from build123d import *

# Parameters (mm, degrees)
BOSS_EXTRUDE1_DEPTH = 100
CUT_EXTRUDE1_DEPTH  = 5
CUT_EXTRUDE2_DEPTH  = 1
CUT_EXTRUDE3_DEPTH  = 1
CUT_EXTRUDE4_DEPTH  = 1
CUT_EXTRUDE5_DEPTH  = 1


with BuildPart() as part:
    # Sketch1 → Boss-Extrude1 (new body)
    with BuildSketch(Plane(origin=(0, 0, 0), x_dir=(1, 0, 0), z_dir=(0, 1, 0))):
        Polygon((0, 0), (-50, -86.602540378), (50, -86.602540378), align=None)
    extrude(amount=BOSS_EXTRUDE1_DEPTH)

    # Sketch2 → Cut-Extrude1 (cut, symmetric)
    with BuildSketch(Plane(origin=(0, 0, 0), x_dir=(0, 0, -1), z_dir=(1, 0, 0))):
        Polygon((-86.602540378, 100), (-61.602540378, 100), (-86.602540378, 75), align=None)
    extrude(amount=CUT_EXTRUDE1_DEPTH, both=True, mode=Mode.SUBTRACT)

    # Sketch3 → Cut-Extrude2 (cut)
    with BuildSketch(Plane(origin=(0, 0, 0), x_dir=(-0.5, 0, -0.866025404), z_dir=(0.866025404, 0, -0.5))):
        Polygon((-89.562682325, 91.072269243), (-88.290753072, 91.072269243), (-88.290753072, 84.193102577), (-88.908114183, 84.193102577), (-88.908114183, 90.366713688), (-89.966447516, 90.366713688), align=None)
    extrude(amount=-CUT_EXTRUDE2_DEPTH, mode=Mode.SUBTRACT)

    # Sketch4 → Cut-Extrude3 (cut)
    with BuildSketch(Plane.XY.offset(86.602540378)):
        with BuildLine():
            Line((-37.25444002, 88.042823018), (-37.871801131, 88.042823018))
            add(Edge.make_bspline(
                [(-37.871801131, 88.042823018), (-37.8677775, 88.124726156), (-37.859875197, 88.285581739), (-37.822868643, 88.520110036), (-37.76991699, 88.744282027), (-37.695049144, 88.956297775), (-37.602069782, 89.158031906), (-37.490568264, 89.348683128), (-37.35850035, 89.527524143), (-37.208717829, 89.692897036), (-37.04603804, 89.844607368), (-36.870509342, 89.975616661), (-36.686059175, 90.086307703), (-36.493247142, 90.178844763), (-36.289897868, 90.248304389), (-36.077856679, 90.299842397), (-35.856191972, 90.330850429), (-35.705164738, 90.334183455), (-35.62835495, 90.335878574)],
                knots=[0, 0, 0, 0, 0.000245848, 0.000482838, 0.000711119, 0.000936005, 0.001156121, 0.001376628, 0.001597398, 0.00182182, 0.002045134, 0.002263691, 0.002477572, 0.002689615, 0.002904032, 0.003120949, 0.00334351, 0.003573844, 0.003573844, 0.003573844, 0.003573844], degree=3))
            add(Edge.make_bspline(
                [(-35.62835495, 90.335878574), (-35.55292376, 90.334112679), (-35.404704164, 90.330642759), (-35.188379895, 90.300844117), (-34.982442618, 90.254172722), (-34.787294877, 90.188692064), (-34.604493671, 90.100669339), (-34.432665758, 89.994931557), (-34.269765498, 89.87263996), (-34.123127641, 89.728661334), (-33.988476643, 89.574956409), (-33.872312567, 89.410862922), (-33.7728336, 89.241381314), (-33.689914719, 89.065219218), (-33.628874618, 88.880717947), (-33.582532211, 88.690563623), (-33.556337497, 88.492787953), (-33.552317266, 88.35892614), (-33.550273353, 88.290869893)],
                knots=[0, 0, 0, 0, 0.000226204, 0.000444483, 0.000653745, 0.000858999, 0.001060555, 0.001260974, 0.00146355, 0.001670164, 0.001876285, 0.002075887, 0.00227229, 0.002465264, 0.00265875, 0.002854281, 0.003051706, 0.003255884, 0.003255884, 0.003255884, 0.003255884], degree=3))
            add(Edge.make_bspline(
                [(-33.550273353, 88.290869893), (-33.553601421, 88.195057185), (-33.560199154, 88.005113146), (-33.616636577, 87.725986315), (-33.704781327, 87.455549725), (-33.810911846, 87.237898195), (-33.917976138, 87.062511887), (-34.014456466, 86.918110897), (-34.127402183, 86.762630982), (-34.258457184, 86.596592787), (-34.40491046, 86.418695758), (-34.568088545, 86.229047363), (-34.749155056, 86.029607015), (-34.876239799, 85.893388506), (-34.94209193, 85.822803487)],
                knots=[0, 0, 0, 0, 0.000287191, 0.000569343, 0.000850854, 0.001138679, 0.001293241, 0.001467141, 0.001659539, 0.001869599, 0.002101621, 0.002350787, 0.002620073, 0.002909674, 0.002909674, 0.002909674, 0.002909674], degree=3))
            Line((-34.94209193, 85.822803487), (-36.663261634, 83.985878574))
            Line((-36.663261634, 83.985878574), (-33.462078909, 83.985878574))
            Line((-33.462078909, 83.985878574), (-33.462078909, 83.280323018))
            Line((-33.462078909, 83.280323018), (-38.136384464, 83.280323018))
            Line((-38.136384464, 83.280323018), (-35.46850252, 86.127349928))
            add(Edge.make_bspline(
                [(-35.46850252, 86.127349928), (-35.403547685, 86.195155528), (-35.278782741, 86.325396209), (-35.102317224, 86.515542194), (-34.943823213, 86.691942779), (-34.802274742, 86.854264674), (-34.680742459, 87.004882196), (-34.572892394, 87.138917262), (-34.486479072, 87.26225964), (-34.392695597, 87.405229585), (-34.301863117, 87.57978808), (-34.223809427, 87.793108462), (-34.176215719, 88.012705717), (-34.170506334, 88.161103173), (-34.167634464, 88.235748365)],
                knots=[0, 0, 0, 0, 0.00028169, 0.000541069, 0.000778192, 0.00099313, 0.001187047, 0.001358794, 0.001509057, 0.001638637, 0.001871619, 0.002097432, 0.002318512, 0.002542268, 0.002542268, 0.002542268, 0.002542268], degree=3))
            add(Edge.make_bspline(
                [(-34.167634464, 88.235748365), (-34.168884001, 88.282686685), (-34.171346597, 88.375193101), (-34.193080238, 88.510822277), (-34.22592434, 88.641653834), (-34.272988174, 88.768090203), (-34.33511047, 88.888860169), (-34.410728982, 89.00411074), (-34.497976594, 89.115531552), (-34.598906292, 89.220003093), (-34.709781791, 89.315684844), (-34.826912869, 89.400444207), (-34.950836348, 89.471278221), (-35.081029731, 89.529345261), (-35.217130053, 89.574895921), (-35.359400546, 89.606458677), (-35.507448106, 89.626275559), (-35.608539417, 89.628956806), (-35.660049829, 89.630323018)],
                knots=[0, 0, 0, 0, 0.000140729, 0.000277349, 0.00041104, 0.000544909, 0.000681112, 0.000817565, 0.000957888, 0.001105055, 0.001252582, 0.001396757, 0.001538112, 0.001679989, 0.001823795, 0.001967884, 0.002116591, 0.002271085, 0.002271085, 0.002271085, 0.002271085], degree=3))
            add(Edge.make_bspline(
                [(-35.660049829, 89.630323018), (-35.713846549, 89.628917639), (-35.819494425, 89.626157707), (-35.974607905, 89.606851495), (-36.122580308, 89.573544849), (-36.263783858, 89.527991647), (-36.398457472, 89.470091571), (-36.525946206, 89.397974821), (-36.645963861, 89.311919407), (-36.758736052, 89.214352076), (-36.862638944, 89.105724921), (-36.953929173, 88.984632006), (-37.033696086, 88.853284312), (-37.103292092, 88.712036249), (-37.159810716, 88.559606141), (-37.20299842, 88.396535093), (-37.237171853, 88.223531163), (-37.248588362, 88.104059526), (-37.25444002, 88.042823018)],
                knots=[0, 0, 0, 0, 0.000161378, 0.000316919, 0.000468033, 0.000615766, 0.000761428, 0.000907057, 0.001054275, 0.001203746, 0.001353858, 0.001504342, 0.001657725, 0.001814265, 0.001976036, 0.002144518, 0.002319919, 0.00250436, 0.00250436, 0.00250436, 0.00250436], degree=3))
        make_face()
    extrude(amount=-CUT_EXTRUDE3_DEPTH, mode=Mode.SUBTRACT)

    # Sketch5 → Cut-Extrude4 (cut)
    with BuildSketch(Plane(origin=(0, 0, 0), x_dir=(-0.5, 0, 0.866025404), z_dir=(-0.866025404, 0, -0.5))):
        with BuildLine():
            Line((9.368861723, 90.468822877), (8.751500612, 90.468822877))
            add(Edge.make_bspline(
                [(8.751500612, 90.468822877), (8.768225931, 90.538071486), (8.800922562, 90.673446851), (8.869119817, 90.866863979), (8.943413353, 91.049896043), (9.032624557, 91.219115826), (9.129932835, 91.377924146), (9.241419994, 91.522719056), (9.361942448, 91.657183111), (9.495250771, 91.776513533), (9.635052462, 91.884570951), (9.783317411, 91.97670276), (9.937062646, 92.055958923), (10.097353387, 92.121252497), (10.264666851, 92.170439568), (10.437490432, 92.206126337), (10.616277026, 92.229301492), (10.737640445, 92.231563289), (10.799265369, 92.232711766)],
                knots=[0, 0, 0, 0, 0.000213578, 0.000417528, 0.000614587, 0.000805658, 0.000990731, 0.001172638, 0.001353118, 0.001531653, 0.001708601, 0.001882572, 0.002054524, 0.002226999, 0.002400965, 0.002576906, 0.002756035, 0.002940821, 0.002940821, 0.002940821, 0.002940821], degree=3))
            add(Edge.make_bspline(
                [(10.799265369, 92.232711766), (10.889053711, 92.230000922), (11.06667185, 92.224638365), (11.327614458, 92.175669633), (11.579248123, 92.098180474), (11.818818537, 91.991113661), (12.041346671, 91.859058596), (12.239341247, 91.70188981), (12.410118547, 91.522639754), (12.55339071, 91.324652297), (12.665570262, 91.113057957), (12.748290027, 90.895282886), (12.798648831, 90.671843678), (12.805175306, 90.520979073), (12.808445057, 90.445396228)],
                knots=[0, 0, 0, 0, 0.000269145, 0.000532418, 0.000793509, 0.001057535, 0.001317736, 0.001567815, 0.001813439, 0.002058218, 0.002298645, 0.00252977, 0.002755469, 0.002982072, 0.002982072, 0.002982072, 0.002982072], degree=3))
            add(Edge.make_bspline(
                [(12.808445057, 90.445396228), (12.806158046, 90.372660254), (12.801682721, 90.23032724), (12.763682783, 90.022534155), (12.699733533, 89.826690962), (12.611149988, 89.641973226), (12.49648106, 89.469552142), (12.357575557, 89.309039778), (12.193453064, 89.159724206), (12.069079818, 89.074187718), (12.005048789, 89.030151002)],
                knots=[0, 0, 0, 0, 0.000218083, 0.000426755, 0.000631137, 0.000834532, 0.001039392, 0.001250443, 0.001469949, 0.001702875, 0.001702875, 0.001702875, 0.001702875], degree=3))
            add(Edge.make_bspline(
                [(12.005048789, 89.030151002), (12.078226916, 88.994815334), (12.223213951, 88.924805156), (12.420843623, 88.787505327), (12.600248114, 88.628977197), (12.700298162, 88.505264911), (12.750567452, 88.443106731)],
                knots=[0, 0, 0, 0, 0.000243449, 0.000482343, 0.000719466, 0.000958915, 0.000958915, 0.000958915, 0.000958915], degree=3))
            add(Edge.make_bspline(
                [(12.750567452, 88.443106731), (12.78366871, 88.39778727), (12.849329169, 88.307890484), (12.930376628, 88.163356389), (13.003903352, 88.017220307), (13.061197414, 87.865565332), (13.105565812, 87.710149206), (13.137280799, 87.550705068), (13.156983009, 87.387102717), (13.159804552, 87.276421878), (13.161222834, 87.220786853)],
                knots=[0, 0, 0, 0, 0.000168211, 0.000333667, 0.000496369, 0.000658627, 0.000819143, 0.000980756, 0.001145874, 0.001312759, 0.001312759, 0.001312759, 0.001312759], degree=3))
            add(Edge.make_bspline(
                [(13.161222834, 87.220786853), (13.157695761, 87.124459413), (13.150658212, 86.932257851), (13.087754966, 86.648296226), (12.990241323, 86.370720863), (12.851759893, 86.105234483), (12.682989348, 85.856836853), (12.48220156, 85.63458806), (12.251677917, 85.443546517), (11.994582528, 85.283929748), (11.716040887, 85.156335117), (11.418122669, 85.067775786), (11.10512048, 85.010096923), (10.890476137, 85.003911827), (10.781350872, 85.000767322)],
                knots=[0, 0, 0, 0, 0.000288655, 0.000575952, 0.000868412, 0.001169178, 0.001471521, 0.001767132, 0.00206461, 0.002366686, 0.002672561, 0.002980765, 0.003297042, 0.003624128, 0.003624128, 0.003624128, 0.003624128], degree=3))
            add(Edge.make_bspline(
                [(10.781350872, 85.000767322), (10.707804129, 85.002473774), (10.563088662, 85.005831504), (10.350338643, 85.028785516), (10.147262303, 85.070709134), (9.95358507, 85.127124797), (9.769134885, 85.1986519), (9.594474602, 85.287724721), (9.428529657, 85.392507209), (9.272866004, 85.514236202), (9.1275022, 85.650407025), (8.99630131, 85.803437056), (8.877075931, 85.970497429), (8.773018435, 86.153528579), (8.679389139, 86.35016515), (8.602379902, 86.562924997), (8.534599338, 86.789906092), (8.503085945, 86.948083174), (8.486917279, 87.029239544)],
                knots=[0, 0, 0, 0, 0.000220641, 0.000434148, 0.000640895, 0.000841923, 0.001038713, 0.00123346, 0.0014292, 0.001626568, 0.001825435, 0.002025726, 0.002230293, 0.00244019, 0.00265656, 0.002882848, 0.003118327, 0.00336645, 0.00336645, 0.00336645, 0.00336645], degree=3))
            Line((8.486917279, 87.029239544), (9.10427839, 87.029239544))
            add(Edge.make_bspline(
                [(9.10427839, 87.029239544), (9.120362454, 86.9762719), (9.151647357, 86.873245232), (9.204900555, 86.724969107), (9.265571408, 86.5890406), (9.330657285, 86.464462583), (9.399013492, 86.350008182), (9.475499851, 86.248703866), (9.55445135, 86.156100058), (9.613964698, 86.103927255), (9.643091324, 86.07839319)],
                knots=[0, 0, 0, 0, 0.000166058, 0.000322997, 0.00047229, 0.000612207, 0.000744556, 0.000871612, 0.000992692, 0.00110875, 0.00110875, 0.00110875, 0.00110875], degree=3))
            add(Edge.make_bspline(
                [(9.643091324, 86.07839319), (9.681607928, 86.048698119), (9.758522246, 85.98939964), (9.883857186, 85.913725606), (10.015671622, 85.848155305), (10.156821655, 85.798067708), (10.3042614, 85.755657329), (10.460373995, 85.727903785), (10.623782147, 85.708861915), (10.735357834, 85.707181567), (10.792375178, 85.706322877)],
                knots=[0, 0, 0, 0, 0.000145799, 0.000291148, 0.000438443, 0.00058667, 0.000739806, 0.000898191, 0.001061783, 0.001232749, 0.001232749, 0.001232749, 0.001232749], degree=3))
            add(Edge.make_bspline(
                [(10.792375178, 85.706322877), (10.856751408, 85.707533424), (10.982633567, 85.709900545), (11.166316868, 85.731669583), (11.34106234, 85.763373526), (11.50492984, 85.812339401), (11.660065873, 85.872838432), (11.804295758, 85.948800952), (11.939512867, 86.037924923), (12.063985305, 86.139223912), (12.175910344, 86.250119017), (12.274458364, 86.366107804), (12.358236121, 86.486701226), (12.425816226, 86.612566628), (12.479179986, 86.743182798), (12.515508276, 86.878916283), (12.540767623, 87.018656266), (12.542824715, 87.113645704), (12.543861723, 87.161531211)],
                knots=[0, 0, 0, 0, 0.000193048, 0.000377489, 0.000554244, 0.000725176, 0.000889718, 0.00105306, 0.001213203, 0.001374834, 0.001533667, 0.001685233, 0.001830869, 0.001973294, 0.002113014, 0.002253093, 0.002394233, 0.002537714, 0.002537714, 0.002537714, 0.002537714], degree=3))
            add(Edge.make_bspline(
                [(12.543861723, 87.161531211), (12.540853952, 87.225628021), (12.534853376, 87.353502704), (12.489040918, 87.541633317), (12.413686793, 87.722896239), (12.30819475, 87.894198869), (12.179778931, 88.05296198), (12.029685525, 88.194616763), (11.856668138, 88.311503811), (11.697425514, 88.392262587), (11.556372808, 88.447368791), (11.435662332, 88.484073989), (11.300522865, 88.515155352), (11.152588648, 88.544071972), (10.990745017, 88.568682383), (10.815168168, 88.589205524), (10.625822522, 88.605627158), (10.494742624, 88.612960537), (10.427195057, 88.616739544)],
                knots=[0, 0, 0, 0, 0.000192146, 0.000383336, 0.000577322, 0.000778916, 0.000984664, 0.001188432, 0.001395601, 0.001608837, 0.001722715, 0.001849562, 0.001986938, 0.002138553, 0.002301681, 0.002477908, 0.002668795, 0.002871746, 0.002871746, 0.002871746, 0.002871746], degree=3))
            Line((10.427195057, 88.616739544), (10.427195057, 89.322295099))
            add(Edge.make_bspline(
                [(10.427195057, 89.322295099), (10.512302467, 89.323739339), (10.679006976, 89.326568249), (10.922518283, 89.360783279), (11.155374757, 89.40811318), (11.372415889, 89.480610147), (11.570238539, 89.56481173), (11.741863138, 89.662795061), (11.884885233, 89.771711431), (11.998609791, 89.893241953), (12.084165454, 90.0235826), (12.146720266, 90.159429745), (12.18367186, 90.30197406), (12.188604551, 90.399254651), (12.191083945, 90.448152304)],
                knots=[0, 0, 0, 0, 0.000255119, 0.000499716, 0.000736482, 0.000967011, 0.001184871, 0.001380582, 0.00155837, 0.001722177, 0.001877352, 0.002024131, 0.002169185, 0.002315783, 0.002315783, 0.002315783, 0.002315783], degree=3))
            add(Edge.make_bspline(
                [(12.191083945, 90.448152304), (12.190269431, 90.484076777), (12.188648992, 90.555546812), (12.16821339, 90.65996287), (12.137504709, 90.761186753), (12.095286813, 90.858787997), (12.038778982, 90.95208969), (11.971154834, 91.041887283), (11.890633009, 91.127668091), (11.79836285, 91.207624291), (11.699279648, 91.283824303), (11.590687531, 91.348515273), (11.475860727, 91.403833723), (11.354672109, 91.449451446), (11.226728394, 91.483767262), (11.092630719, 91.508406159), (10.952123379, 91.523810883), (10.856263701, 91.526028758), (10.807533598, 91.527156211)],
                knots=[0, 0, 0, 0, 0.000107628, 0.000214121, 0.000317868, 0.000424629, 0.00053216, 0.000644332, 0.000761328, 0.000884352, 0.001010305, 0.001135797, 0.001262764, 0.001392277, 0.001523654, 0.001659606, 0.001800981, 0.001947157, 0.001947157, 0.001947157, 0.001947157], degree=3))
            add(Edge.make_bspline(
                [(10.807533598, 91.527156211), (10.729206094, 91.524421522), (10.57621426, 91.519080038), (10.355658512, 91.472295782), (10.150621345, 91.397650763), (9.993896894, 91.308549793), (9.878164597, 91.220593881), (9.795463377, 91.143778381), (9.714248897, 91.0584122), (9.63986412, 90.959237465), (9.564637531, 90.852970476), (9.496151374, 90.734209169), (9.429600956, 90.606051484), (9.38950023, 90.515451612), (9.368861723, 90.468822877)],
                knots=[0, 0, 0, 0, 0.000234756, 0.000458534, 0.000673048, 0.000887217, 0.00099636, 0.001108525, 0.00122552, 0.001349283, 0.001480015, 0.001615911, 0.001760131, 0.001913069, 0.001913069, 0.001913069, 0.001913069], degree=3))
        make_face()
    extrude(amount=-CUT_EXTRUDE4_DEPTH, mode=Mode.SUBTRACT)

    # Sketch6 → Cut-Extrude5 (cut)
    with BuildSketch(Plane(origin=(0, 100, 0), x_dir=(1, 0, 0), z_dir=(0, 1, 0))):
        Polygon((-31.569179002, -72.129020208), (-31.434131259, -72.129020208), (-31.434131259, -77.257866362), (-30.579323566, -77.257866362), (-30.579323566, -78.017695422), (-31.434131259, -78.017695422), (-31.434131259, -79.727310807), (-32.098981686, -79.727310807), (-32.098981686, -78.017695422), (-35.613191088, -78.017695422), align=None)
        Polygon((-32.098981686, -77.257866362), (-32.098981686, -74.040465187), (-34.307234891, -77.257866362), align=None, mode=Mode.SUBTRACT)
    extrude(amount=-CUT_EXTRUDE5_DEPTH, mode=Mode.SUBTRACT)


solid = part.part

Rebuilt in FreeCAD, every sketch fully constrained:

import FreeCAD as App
import Part
import Sketcher
Q = App.Units.Quantity

doc = App.newDocument("Part")
body = doc.addObject("PartDesign::Body", "Body")

sketch1 = body.newObject("Sketcher::SketchObject", "Sketch")
sketch1.AttachmentSupport = (doc.getObject("XZ_Plane"), [""])
sketch1.MapMode = "FlatFace"
sketch1.addGeometry([
    Part.LineSegment(App.Vector(0, 0, 0), App.Vector(-50, 87, 0)),
    Part.LineSegment(App.Vector(-50, 87, 0), App.Vector(50, 87, 0)),
    Part.LineSegment(App.Vector(50, 87, 0), App.Vector(0, 0, 0)),
], False)
sketch1.addConstraint([
    Sketcher.Constraint("Coincident", 0, 2, 1, 1),
    Sketcher.Constraint("Coincident", 1, 2, 2, 1),
    Sketcher.Constraint("Coincident", 2, 2, 0, 1),
    Sketcher.Constraint("Horizontal", 1),
    Sketcher.Constraint("Coincident", 2, 2, -1, 1),
    Sketcher.Constraint("Equal", 0, 2),
    Sketcher.Constraint("DistanceX", 1, 1, 1, 2, Q("100 mm")),
    Sketcher.Constraint("Angle", 0, Q("120 deg")),
])
pad1 = body.newObject("PartDesign::Pad", "Pad")
pad1.Profile = sketch1
pad1.Length = 100
pad1.Reversed = True

sketch2 = body.newObject("Sketcher::SketchObject", "Sketch001")
sketch2.AttachmentSupport = (doc.getObject("YZ_Plane"), [""])
sketch2.MapMode = "FlatFace"
sketch2.addGeometry([
    Part.LineSegment(App.Vector(100, 62, 0), App.Vector(100, 87, 0)),
    Part.LineSegment(App.Vector(100, 87, 0), App.Vector(75, 87, 0)),
    Part.LineSegment(App.Vector(75, 87, 0), App.Vector(100, 62, 0)),
], False)
sketch2.addConstraint([
    Sketcher.Constraint("Coincident", 0, 2, 1, 1),
    Sketcher.Constraint("Coincident", 1, 2, 2, 1),
    Sketcher.Constraint("Coincident", 2, 2, 0, 1),
    Sketcher.Constraint("Vertical", 0),
    Sketcher.Constraint("Horizontal", 1),
    Sketcher.Constraint("Equal", 1, 0),
    Sketcher.Constraint("DistanceX", 1, 2, 1, 1, Q("25 mm")),
    Sketcher.Constraint("DistanceX", -1, 1, 0, 2, Q("100 mm")),
    Sketcher.Constraint("DistanceY", -1, 1, 0, 2, Q("86.60254 mm")),
])
pocket1 = body.newObject("PartDesign::Pocket", "Pocket")
pocket1.Profile = sketch2
pocket1.Length = 10
pocket1.Midplane = True

sketch3 = body.newObject("Sketcher::SketchObject", "Sketch002")
sketch3.Placement = App.Placement(App.Vector(0, 0, 0), App.Rotation(App.Vector(-0.5, 0, -0.866025404), App.Vector(0, 1, 0), App.Vector(0.866025404, 0, -0.5), "ZXY"))
sketch3.addGeometry([
    Part.LineSegment(App.Vector(-88.3, 91.1, 0), App.Vector(-89.6, 91.1, 0)),
    Part.LineSegment(App.Vector(-89.6, 91.1, 0), App.Vector(-90, 90.4, 0)),
    Part.LineSegment(App.Vector(-90, 90.4, 0), App.Vector(-88.9, 90.4, 0)),
    Part.LineSegment(App.Vector(-88.9, 90.4, 0), App.Vector(-88.9, 84.2, 0)),
    Part.LineSegment(App.Vector(-88.9, 84.2, 0), App.Vector(-88.3, 84.2, 0)),
    Part.LineSegment(App.Vector(-88.3, 84.2, 0), App.Vector(-88.3, 91.1, 0)),
], False)
sketch3.addConstraint([
    Sketcher.Constraint("Coincident", 0, 2, 1, 1),
    Sketcher.Constraint("Coincident", 1, 2, 2, 1),
    Sketcher.Constraint("Coincident", 2, 2, 3, 1),
    Sketcher.Constraint("Coincident", 3, 2, 4, 1),
    Sketcher.Constraint("Coincident", 4, 2, 5, 1),
    Sketcher.Constraint("Coincident", 5, 2, 0, 1),
    Sketcher.Constraint("Horizontal", 0),
    Sketcher.Constraint("Horizontal", 2),
    Sketcher.Constraint("Vertical", 3),
    Sketcher.Constraint("Horizontal", 4),
    Sketcher.Constraint("Vertical", 5),
    Sketcher.Constraint("DistanceX", 0, 2, 0, 1, Q("1.271929 mm")),
    Sketcher.Constraint("DistanceX", 4, 1, 4, 2, Q("0.617361 mm")),
    Sketcher.Constraint("DistanceY", 3, 2, 3, 1, Q("6.173611 mm")),
    Sketcher.Constraint("DistanceX", 2, 1, 2, 2, Q("1.058333 mm")),
    Sketcher.Constraint("DistanceY", 5, 1, 5, 2, Q("6.879167 mm")),
    Sketcher.Constraint("DistanceY", -1, 1, 0, 2, Q("91.072269 mm")),
    Sketcher.Constraint("DistanceX", 0, 2, -1, 1, Q("89.562682 mm")),
])
pocket2 = body.newObject("PartDesign::Pocket", "Pocket001")
pocket2.Profile = sketch3
pocket2.Length = 1

sketch4 = body.newObject("Sketcher::SketchObject", "Sketch003")
sketch4.AttachmentSupport = (doc.getObject("XY_Plane"), [""])
sketch4.MapMode = "FlatFace"
sketch4.AttachmentOffset = App.Placement(App.Vector(0, 0, 86.60254), App.Rotation())
sketch4.addGeometry([
    Part.LineSegment(App.Vector(-37.871801, 88.042823, 0), App.Vector(-37.25444, 88.042823, 0)),
    Part.BSplineCurve([App.Vector(-35.66005, 89.630323, 0), App.Vector(-35.713847, 89.628918, 0), App.Vector(-35.819494, 89.626158, 0), App.Vector(-35.974608, 89.606851, 0), App.Vector(-36.12258, 89.573545, 0), App.Vector(-36.263784, 89.527992, 0), App.Vector(-36.398457, 89.470092, 0), App.Vector(-36.525946, 89.397975, 0), App.Vector(-36.645964, 89.311919, 0), App.Vector(-36.758736, 89.214352, 0), App.Vector(-36.862639, 89.105725, 0), App.Vector(-36.953929, 88.984632, 0), App.Vector(-37.033696, 88.853284, 0), App.Vector(-37.103292, 88.712036, 0), App.Vector(-37.159811, 88.559606, 0), App.Vector(-37.202998, 88.396535, 0), App.Vector(-37.237172, 88.223531, 0), App.Vector(-37.248588, 88.10406, 0), App.Vector(-37.25444, 88.042823, 0)], [4, 1, 1, 1, 1, 1, 1, 1, 1, 1, 1, 1, 1, 1, 1, 1, 4], [0, 0.000161378, 0.000316919, 0.000468033, 0.000615766, 0.000761428, 0.000907057, 0.001054275, 0.001203746, 0.001353858, 0.001504342, 0.001657725, 0.001814265, 0.001976036, 0.002144518, 0.002319919, 0.00250436], False, 3, [1, 1, 1, 1, 1, 1, 1, 1, 1, 1, 1, 1, 1, 1, 1, 1, 1, 1, 1], False),
    Part.BSplineCurve([App.Vector(-34.167634, 88.235748, 0), App.Vector(-34.168884, 88.282687, 0), App.Vector(-34.171347, 88.375193, 0), App.Vector(-34.19308, 88.510822, 0), App.Vector(-34.225924, 88.641654, 0), App.Vector(-34.272988, 88.76809, 0), App.Vector(-34.33511, 88.88886, 0), App.Vector(-34.410729, 89.004111, 0), App.Vector(-34.497977, 89.115532, 0), App.Vector(-34.598906, 89.220003, 0), App.Vector(-34.709782, 89.315685, 0), App.Vector(-34.826913, 89.400444, 0), App.Vector(-34.950836, 89.471278, 0), App.Vector(-35.08103, 89.529345, 0), App.Vector(-35.21713, 89.574896, 0), App.Vector(-35.359401, 89.606459, 0), App.Vector(-35.507448, 89.626276, 0), App.Vector(-35.608539, 89.628957, 0), App.Vector(-35.66005, 89.630323, 0)], [4, 1, 1, 1, 1, 1, 1, 1, 1, 1, 1, 1, 1, 1, 1, 1, 4], [0, 0.000140729, 0.000277349, 0.00041104, 0.000544909, 0.000681112, 0.000817565, 0.000957888, 0.001105055, 0.001252582, 0.001396757, 0.001538112, 0.001679989, 0.001823795, 0.001967884, 0.002116591, 0.002271085], False, 3, [1, 1, 1, 1, 1, 1, 1, 1, 1, 1, 1, 1, 1, 1, 1, 1, 1, 1, 1], False),
    Part.BSplineCurve([App.Vector(-35.468503, 86.12735, 0), App.Vector(-35.403548, 86.195156, 0), App.Vector(-35.278783, 86.325396, 0), App.Vector(-35.102317, 86.515542, 0), App.Vector(-34.943823, 86.691943, 0), App.Vector(-34.802275, 86.854265, 0), App.Vector(-34.680742, 87.004882, 0), App.Vector(-34.572892, 87.138917, 0), App.Vector(-34.486479, 87.26226, 0), App.Vector(-34.392696, 87.40523, 0), App.Vector(-34.301863, 87.579788, 0), App.Vector(-34.223809, 87.793108, 0), App.Vector(-34.176216, 88.012706, 0), App.Vector(-34.170506, 88.161103, 0), App.Vector(-34.167634, 88.235748, 0)], [4, 1, 1, 1, 1, 1, 1, 1, 1, 1, 1, 1, 4], [0, 0.00028169, 0.000541069, 0.000778192, 0.00099313, 0.001187047, 0.001358794, 0.001509057, 0.001638637, 0.001871619, 0.002097432, 0.002318512, 0.002542268], False, 3, [1, 1, 1, 1, 1, 1, 1, 1, 1, 1, 1, 1, 1, 1, 1], False),
    Part.LineSegment(App.Vector(-35.468503, 86.12735, 0), App.Vector(-38.136384, 83.280323, 0)),
    Part.LineSegment(App.Vector(-38.136384, 83.280323, 0), App.Vector(-33.462079, 83.280323, 0)),
    Part.LineSegment(App.Vector(-33.462079, 83.280323, 0), App.Vector(-33.462079, 83.985879, 0)),
    Part.LineSegment(App.Vector(-33.462079, 83.985879, 0), App.Vector(-36.663262, 83.985879, 0)),
    Part.LineSegment(App.Vector(-36.663262, 83.985879, 0), App.Vector(-34.942092, 85.822803, 0)),
    Part.BSplineCurve([App.Vector(-33.550273, 88.29087, 0), App.Vector(-33.553601, 88.195057, 0), App.Vector(-33.560199, 88.005113, 0), App.Vector(-33.616637, 87.725986, 0), App.Vector(-33.704781, 87.45555, 0), App.Vector(-33.810912, 87.237898, 0), App.Vector(-33.917976, 87.062512, 0), App.Vector(-34.014456, 86.918111, 0), App.Vector(-34.127402, 86.762631, 0), App.Vector(-34.258457, 86.596593, 0), App.Vector(-34.40491, 86.418696, 0), App.Vector(-34.568089, 86.229047, 0), App.Vector(-34.749155, 86.029607, 0), App.Vector(-34.87624, 85.893389, 0), App.Vector(-34.942092, 85.822803, 0)], [4, 1, 1, 1, 1, 1, 1, 1, 1, 1, 1, 1, 4], [0, 0.000287191, 0.000569343, 0.000850854, 0.001138679, 0.001293241, 0.001467141, 0.001659539, 0.001869599, 0.002101621, 0.002350787, 0.002620073, 0.002909674], False, 3, [1, 1, 1, 1, 1, 1, 1, 1, 1, 1, 1, 1, 1, 1, 1], False),
    Part.BSplineCurve([App.Vector(-35.628355, 90.335879, 0), App.Vector(-35.552924, 90.334113, 0), App.Vector(-35.404704, 90.330643, 0), App.Vector(-35.18838, 90.300844, 0), App.Vector(-34.982443, 90.254173, 0), App.Vector(-34.787295, 90.188692, 0), App.Vector(-34.604494, 90.100669, 0), App.Vector(-34.432666, 89.994932, 0), App.Vector(-34.269765, 89.87264, 0), App.Vector(-34.123128, 89.728661, 0), App.Vector(-33.988477, 89.574956, 0), App.Vector(-33.872313, 89.410863, 0), App.Vector(-33.772834, 89.241381, 0), App.Vector(-33.689915, 89.065219, 0), App.Vector(-33.628875, 88.880718, 0), App.Vector(-33.582532, 88.690564, 0), App.Vector(-33.556337, 88.492788, 0), App.Vector(-33.552317, 88.358926, 0), App.Vector(-33.550273, 88.29087, 0)], [4, 1, 1, 1, 1, 1, 1, 1, 1, 1, 1, 1, 1, 1, 1, 1, 4], [0, 0.000226204, 0.000444483, 0.000653745, 0.000858999, 0.001060555, 0.001260974, 0.00146355, 0.001670164, 0.001876285, 0.002075887, 0.00227229, 0.002465264, 0.00265875, 0.002854281, 0.003051706, 0.003255884], False, 3, [1, 1, 1, 1, 1, 1, 1, 1, 1, 1, 1, 1, 1, 1, 1, 1, 1, 1, 1], False),
    Part.BSplineCurve([App.Vector(-37.871801, 88.042823, 0), App.Vector(-37.867778, 88.124726, 0), App.Vector(-37.859875, 88.285582, 0), App.Vector(-37.822869, 88.52011, 0), App.Vector(-37.769917, 88.744282, 0), App.Vector(-37.695049, 88.956298, 0), App.Vector(-37.60207, 89.158032, 0), App.Vector(-37.490568, 89.348683, 0), App.Vector(-37.3585, 89.527524, 0), App.Vector(-37.208718, 89.692897, 0), App.Vector(-37.046038, 89.844607, 0), App.Vector(-36.870509, 89.975617, 0), App.Vector(-36.686059, 90.086308, 0), App.Vector(-36.493247, 90.178845, 0), App.Vector(-36.289898, 90.248304, 0), App.Vector(-36.077857, 90.299842, 0), App.Vector(-35.856192, 90.33085, 0), App.Vector(-35.705165, 90.334183, 0), App.Vector(-35.628355, 90.335879, 0)], [4, 1, 1, 1, 1, 1, 1, 1, 1, 1, 1, 1, 1, 1, 1, 1, 4], [0, 0.000245848, 0.000482838, 0.000711119, 0.000936005, 0.001156121, 0.001376628, 0.001597398, 0.00182182, 0.002045134, 0.002263691, 0.002477572, 0.002689615, 0.002904032, 0.003120949, 0.00334351, 0.003573844], False, 3, [1, 1, 1, 1, 1, 1, 1, 1, 1, 1, 1, 1, 1, 1, 1, 1, 1, 1, 1], False),
], False)
sketch4.addConstraint([
    Sketcher.Constraint("Block", 1),
    Sketcher.Constraint("Block", 2),
    Sketcher.Constraint("Block", 3),
    Sketcher.Constraint("Block", 9),
    Sketcher.Constraint("Block", 10),
    Sketcher.Constraint("Block", 11),
    Sketcher.Constraint("Coincident", 0, 2, 1, 2),
    Sketcher.Constraint("Coincident", 3, 1, 4, 1),
    Sketcher.Constraint("Coincident", 4, 2, 5, 1),
    Sketcher.Constraint("Coincident", 5, 2, 6, 1),
    Sketcher.Constraint("Coincident", 6, 2, 7, 1),
    Sketcher.Constraint("Coincident", 7, 2, 8, 1),
    Sketcher.Constraint("Coincident", 8, 2, 9, 2),
    Sketcher.Constraint("Coincident", 11, 1, 0, 1),
    Sketcher.Constraint("Horizontal", 5),
    Sketcher.Constraint("Vertical", 6),
    Sketcher.Constraint("Horizontal", 7),
    Sketcher.Constraint("DistanceY", 4, 2, 0, 2, Q("4.7625 mm")),
    Sketcher.Constraint("DistanceX", 5, 1, 5, 2, Q("4.674306 mm")),
    Sketcher.Constraint("DistanceX", 7, 2, 7, 1, Q("3.201183 mm")),
    Sketcher.Constraint("DistanceY", 6, 1, 6, 2, Q("0.705556 mm")),
    Sketcher.Constraint("DistanceX", 5, 2, -1, 1, Q("33.462079 mm")),
])
pocket3 = body.newObject("PartDesign::Pocket", "Pocket002")
pocket3.Profile = sketch4
pocket3.Length = 1

sketch5 = body.newObject("Sketcher::SketchObject", "Sketch004")
sketch5.Placement = App.Placement(App.Vector(0, 0, 0), App.Rotation(App.Vector(-0.5, 0, 0.866025404), App.Vector(0, 1, 0), App.Vector(-0.866025404, 0, -0.5), "ZXY"))
sketch5.addGeometry([
    Part.LineSegment(App.Vector(8.751501, 90.468823, 0), App.Vector(9.368862, 90.468823, 0)),
    Part.BSplineCurve([App.Vector(10.807534, 91.527156, 0), App.Vector(10.729206, 91.524422, 0), App.Vector(10.576214, 91.51908, 0), App.Vector(10.355659, 91.472296, 0), App.Vector(10.150621, 91.397651, 0), App.Vector(9.993897, 91.30855, 0), App.Vector(9.878165, 91.220594, 0), App.Vector(9.795463, 91.143778, 0), App.Vector(9.714249, 91.058412, 0), App.Vector(9.639864, 90.959238, 0), App.Vector(9.564638, 90.852971, 0), App.Vector(9.496151, 90.734209, 0), App.Vector(9.429601, 90.606052, 0), App.Vector(9.3895, 90.515452, 0), App.Vector(9.368862, 90.468823, 0)], [4, 1, 1, 1, 1, 1, 1, 1, 1, 1, 1, 1, 4], [0, 0.000234756, 0.000458534, 0.000673048, 0.000887217, 0.00099636, 0.001108525, 0.00122552, 0.001349283, 0.001480015, 0.001615911, 0.001760131, 0.001913069], False, 3, [1, 1, 1, 1, 1, 1, 1, 1, 1, 1, 1, 1, 1, 1, 1], False),
    Part.BSplineCurve([App.Vector(12.191084, 90.448152, 0), App.Vector(12.190269, 90.484077, 0), App.Vector(12.188649, 90.555547, 0), App.Vector(12.168213, 90.659963, 0), App.Vector(12.137505, 90.761187, 0), App.Vector(12.095287, 90.858788, 0), App.Vector(12.038779, 90.95209, 0), App.Vector(11.971155, 91.041887, 0), App.Vector(11.890633, 91.127668, 0), App.Vector(11.798363, 91.207624, 0), App.Vector(11.69928, 91.283824, 0), App.Vector(11.590688, 91.348515, 0), App.Vector(11.475861, 91.403834, 0), App.Vector(11.354672, 91.449452, 0), App.Vector(11.226728, 91.483767, 0), App.Vector(11.092631, 91.508406, 0), App.Vector(10.952123, 91.523811, 0), App.Vector(10.856264, 91.526029, 0), App.Vector(10.807534, 91.527156, 0)], [4, 1, 1, 1, 1, 1, 1, 1, 1, 1, 1, 1, 1, 1, 1, 1, 4], [0, 0.000107628, 0.000214121, 0.000317868, 0.000424629, 0.00053216, 0.000644332, 0.000761328, 0.000884352, 0.001010305, 0.001135797, 0.001262764, 0.001392277, 0.001523654, 0.001659606, 0.001800981, 0.001947157], False, 3, [1, 1, 1, 1, 1, 1, 1, 1, 1, 1, 1, 1, 1, 1, 1, 1, 1, 1, 1], False),
    Part.BSplineCurve([App.Vector(10.427195, 89.322295, 0), App.Vector(10.512302, 89.323739, 0), App.Vector(10.679007, 89.326568, 0), App.Vector(10.922518, 89.360783, 0), App.Vector(11.155375, 89.408113, 0), App.Vector(11.372416, 89.48061, 0), App.Vector(11.570239, 89.564812, 0), App.Vector(11.741863, 89.662795, 0), App.Vector(11.884885, 89.771711, 0), App.Vector(11.99861, 89.893242, 0), App.Vector(12.084165, 90.023583, 0), App.Vector(12.14672, 90.15943, 0), App.Vector(12.183672, 90.301974, 0), App.Vector(12.188605, 90.399255, 0), App.Vector(12.191084, 90.448152, 0)], [4, 1, 1, 1, 1, 1, 1, 1, 1, 1, 1, 1, 4], [0, 0.000255119, 0.000499716, 0.000736482, 0.000967011, 0.001184871, 0.001380582, 0.00155837, 0.001722177, 0.001877352, 0.002024131, 0.002169185, 0.002315783], False, 3, [1, 1, 1, 1, 1, 1, 1, 1, 1, 1, 1, 1, 1, 1, 1], False),
    Part.LineSegment(App.Vector(10.427195, 89.322295, 0), App.Vector(10.427195, 88.61674, 0)),
    Part.BSplineCurve([App.Vector(12.543862, 87.161531, 0), App.Vector(12.540854, 87.225628, 0), App.Vector(12.534853, 87.353503, 0), App.Vector(12.489041, 87.541633, 0), App.Vector(12.413687, 87.722896, 0), App.Vector(12.308195, 87.894199, 0), App.Vector(12.179779, 88.052962, 0), App.Vector(12.029686, 88.194617, 0), App.Vector(11.856668, 88.311504, 0), App.Vector(11.697426, 88.392263, 0), App.Vector(11.556373, 88.447369, 0), App.Vector(11.435662, 88.484074, 0), App.Vector(11.300523, 88.515155, 0), App.Vector(11.152589, 88.544072, 0), App.Vector(10.990745, 88.568682, 0), App.Vector(10.815168, 88.589206, 0), App.Vector(10.625823, 88.605627, 0), App.Vector(10.494743, 88.612961, 0), App.Vector(10.427195, 88.61674, 0)], [4, 1, 1, 1, 1, 1, 1, 1, 1, 1, 1, 1, 1, 1, 1, 1, 4], [0, 0.000192146, 0.000383336, 0.000577322, 0.000778916, 0.000984664, 0.001188432, 0.001395601, 0.001608837, 0.001722715, 0.001849562, 0.001986938, 0.002138553, 0.002301681, 0.002477908, 0.002668795, 0.002871746], False, 3, [1, 1, 1, 1, 1, 1, 1, 1, 1, 1, 1, 1, 1, 1, 1, 1, 1, 1, 1], False),
    Part.BSplineCurve([App.Vector(10.792375, 85.706323, 0), App.Vector(10.856751, 85.707533, 0), App.Vector(10.982634, 85.709901, 0), App.Vector(11.166317, 85.73167, 0), App.Vector(11.341062, 85.763374, 0), App.Vector(11.50493, 85.812339, 0), App.Vector(11.660066, 85.872838, 0), App.Vector(11.804296, 85.948801, 0), App.Vector(11.939513, 86.037925, 0), App.Vector(12.063985, 86.139224, 0), App.Vector(12.17591, 86.250119, 0), App.Vector(12.274458, 86.366108, 0), App.Vector(12.358236, 86.486701, 0), App.Vector(12.425816, 86.612567, 0), App.Vector(12.47918, 86.743183, 0), App.Vector(12.515508, 86.878916, 0), App.Vector(12.540768, 87.018656, 0), App.Vector(12.542825, 87.113646, 0), App.Vector(12.543862, 87.161531, 0)], [4, 1, 1, 1, 1, 1, 1, 1, 1, 1, 1, 1, 1, 1, 1, 1, 4], [0, 0.000193048, 0.000377489, 0.000554244, 0.000725176, 0.000889718, 0.00105306, 0.001213203, 0.001374834, 0.001533667, 0.001685233, 0.001830869, 0.001973294, 0.002113014, 0.002253093, 0.002394233, 0.002537714], False, 3, [1, 1, 1, 1, 1, 1, 1, 1, 1, 1, 1, 1, 1, 1, 1, 1, 1, 1, 1], False),
    Part.BSplineCurve([App.Vector(9.643091, 86.078393, 0), App.Vector(9.681608, 86.048698, 0), App.Vector(9.758522, 85.9894, 0), App.Vector(9.883857, 85.913726, 0), App.Vector(10.015672, 85.848155, 0), App.Vector(10.156822, 85.798068, 0), App.Vector(10.304261, 85.755657, 0), App.Vector(10.460374, 85.727904, 0), App.Vector(10.623782, 85.708862, 0), App.Vector(10.735358, 85.707182, 0), App.Vector(10.792375, 85.706323, 0)], [4, 1, 1, 1, 1, 1, 1, 1, 4], [0, 0.000145799, 0.000291148, 0.000438443, 0.00058667, 0.000739806, 0.000898191, 0.001061783, 0.001232749], False, 3, [1, 1, 1, 1, 1, 1, 1, 1, 1, 1, 1], False),
    Part.BSplineCurve([App.Vector(9.104278, 87.02924, 0), App.Vector(9.120362, 86.976272, 0), App.Vector(9.151647, 86.873245, 0), App.Vector(9.204901, 86.724969, 0), App.Vector(9.265571, 86.589041, 0), App.Vector(9.330657, 86.464463, 0), App.Vector(9.399013, 86.350008, 0), App.Vector(9.4755, 86.248704, 0), App.Vector(9.554451, 86.1561, 0), App.Vector(9.613965, 86.103927, 0), App.Vector(9.643091, 86.078393, 0)], [4, 1, 1, 1, 1, 1, 1, 1, 4], [0, 0.000166058, 0.000322997, 0.00047229, 0.000612207, 0.000744556, 0.000871612, 0.000992692, 0.00110875], False, 3, [1, 1, 1, 1, 1, 1, 1, 1, 1, 1, 1], False),
    Part.LineSegment(App.Vector(9.104278, 87.02924, 0), App.Vector(8.486917, 87.02924, 0)),
    Part.BSplineCurve([App.Vector(10.781351, 85.000767, 0), App.Vector(10.707804, 85.002474, 0), App.Vector(10.563089, 85.005832, 0), App.Vector(10.350339, 85.028786, 0), App.Vector(10.147262, 85.070709, 0), App.Vector(9.953585, 85.127125, 0), App.Vector(9.769135, 85.198652, 0), App.Vector(9.594475, 85.287725, 0), App.Vector(9.42853, 85.392507, 0), App.Vector(9.272866, 85.514236, 0), App.Vector(9.127502, 85.650407, 0), App.Vector(8.996301, 85.803437, 0), App.Vector(8.877076, 85.970497, 0), App.Vector(8.773018, 86.153529, 0), App.Vector(8.679389, 86.350165, 0), App.Vector(8.60238, 86.562925, 0), App.Vector(8.534599, 86.789906, 0), App.Vector(8.503086, 86.948083, 0), App.Vector(8.486917, 87.02924, 0)], [4, 1, 1, 1, 1, 1, 1, 1, 1, 1, 1, 1, 1, 1, 1, 1, 4], [0, 0.000220641, 0.000434148, 0.000640895, 0.000841923, 0.001038713, 0.00123346, 0.0014292, 0.001626568, 0.001825435, 0.002025726, 0.002230293, 0.00244019, 0.00265656, 0.002882848, 0.003118327, 0.00336645], False, 3, [1, 1, 1, 1, 1, 1, 1, 1, 1, 1, 1, 1, 1, 1, 1, 1, 1, 1, 1], False),
    Part.BSplineCurve([App.Vector(13.161223, 87.220787, 0), App.Vector(13.157696, 87.124459, 0), App.Vector(13.150658, 86.932258, 0), App.Vector(13.087755, 86.648296, 0), App.Vector(12.990241, 86.370721, 0), App.Vector(12.85176, 86.105235, 0), App.Vector(12.682989, 85.856837, 0), App.Vector(12.482202, 85.634588, 0), App.Vector(12.251678, 85.443547, 0), App.Vector(11.994583, 85.28393, 0), App.Vector(11.716041, 85.156335, 0), App.Vector(11.418123, 85.067776, 0), App.Vector(11.10512, 85.010097, 0), App.Vector(10.890476, 85.003912, 0), App.Vector(10.781351, 85.000767, 0)], [4, 1, 1, 1, 1, 1, 1, 1, 1, 1, 1, 1, 4], [0, 0.000288655, 0.000575952, 0.000868412, 0.001169178, 0.001471521, 0.001767132, 0.00206461, 0.002366686, 0.002672561, 0.002980765, 0.003297042, 0.003624128], False, 3, [1, 1, 1, 1, 1, 1, 1, 1, 1, 1, 1, 1, 1, 1, 1], False),
    Part.BSplineCurve([App.Vector(12.750567, 88.443107, 0), App.Vector(12.783669, 88.397787, 0), App.Vector(12.849329, 88.307891, 0), App.Vector(12.930377, 88.163356, 0), App.Vector(13.003903, 88.01722, 0), App.Vector(13.061197, 87.865565, 0), App.Vector(13.105566, 87.710149, 0), App.Vector(13.137281, 87.550705, 0), App.Vector(13.156983, 87.387103, 0), App.Vector(13.159805, 87.276422, 0), App.Vector(13.161223, 87.220787, 0)], [4, 1, 1, 1, 1, 1, 1, 1, 4], [0, 0.000168211, 0.000333667, 0.000496369, 0.000658627, 0.000819143, 0.000980756, 0.001145874, 0.001312759], False, 3, [1, 1, 1, 1, 1, 1, 1, 1, 1, 1, 1], False),
    Part.BSplineCurve([App.Vector(12.005049, 89.030151, 0), App.Vector(12.078227, 88.994815, 0), App.Vector(12.223214, 88.924805, 0), App.Vector(12.420844, 88.787505, 0), App.Vector(12.600248, 88.628977, 0), App.Vector(12.700298, 88.505265, 0), App.Vector(12.750567, 88.443107, 0)], [4, 1, 1, 1, 4], [0, 0.000243449, 0.000482343, 0.000719466, 0.000958915], False, 3, [1, 1, 1, 1, 1, 1, 1], False),
    Part.BSplineCurve([App.Vector(12.808445, 90.445396, 0), App.Vector(12.806158, 90.37266, 0), App.Vector(12.801683, 90.230327, 0), App.Vector(12.763683, 90.022534, 0), App.Vector(12.699734, 89.826691, 0), App.Vector(12.61115, 89.641973, 0), App.Vector(12.496481, 89.469552, 0), App.Vector(12.357576, 89.30904, 0), App.Vector(12.193453, 89.159724, 0), App.Vector(12.06908, 89.074188, 0), App.Vector(12.005049, 89.030151, 0)], [4, 1, 1, 1, 1, 1, 1, 1, 4], [0, 0.000218083, 0.000426755, 0.000631137, 0.000834532, 0.001039392, 0.001250443, 0.001469949, 0.001702875], False, 3, [1, 1, 1, 1, 1, 1, 1, 1, 1, 1, 1], False),
    Part.BSplineCurve([App.Vector(10.799265, 92.232712, 0), App.Vector(10.889054, 92.230001, 0), App.Vector(11.066672, 92.224638, 0), App.Vector(11.327614, 92.17567, 0), App.Vector(11.579248, 92.098181, 0), App.Vector(11.818819, 91.991114, 0), App.Vector(12.041347, 91.859059, 0), App.Vector(12.239341, 91.70189, 0), App.Vector(12.410119, 91.52264, 0), App.Vector(12.553391, 91.324652, 0), App.Vector(12.66557, 91.113058, 0), App.Vector(12.74829, 90.895283, 0), App.Vector(12.798649, 90.671844, 0), App.Vector(12.805175, 90.520979, 0), App.Vector(12.808445, 90.445396, 0)], [4, 1, 1, 1, 1, 1, 1, 1, 1, 1, 1, 1, 4], [0, 0.000269145, 0.000532418, 0.000793509, 0.001057535, 0.001317736, 0.001567815, 0.001813439, 0.002058218, 0.002298645, 0.00252977, 0.002755469, 0.002982072], False, 3, [1, 1, 1, 1, 1, 1, 1, 1, 1, 1, 1, 1, 1, 1, 1], False),
    Part.BSplineCurve([App.Vector(8.751501, 90.468823, 0), App.Vector(8.768226, 90.538072, 0), App.Vector(8.800923, 90.673447, 0), App.Vector(8.86912, 90.866864, 0), App.Vector(8.943413, 91.049896, 0), App.Vector(9.032625, 91.219116, 0), App.Vector(9.129933, 91.377924, 0), App.Vector(9.24142, 91.522719, 0), App.Vector(9.361942, 91.657183, 0), App.Vector(9.495251, 91.776514, 0), App.Vector(9.635052, 91.884571, 0), App.Vector(9.783317, 91.976703, 0), App.Vector(9.937063, 92.055959, 0), App.Vector(10.097353, 92.121253, 0), App.Vector(10.264667, 92.17044, 0), App.Vector(10.43749, 92.206126, 0), App.Vector(10.616277, 92.229302, 0), App.Vector(10.73764, 92.231563, 0), App.Vector(10.799265, 92.232712, 0)], [4, 1, 1, 1, 1, 1, 1, 1, 1, 1, 1, 1, 1, 1, 1, 1, 4], [0, 0.000213578, 0.000417528, 0.000614587, 0.000805658, 0.000990731, 0.001172638, 0.001353118, 0.001531653, 0.001708601, 0.001882572, 0.002054524, 0.002226999, 0.002400965, 0.002576906, 0.002756035, 0.002940821], False, 3, [1, 1, 1, 1, 1, 1, 1, 1, 1, 1, 1, 1, 1, 1, 1, 1, 1, 1, 1], False),
], False)
sketch5.addConstraint([
    Sketcher.Constraint("Block", 1),
    Sketcher.Constraint("Block", 2),
    Sketcher.Constraint("Block", 3),
    Sketcher.Constraint("Block", 5),
    Sketcher.Constraint("Block", 6),
    Sketcher.Constraint("Block", 7),
    Sketcher.Constraint("Block", 8),
    Sketcher.Constraint("Block", 10),
    Sketcher.Constraint("Block", 11),
    Sketcher.Constraint("Block", 12),
    Sketcher.Constraint("Block", 13),
    Sketcher.Constraint("Block", 14),
    Sketcher.Constraint("Block", 15),
    Sketcher.Constraint("Block", 16),
    Sketcher.Constraint("Coincident", 0, 2, 1, 2),
    Sketcher.Constraint("Coincident", 3, 1, 4, 1),
    Sketcher.Constraint("Coincident", 4, 2, 5, 2),
    Sketcher.Constraint("Coincident", 8, 1, 9, 1),
    Sketcher.Constraint("Coincident", 9, 2, 10, 2),
    Sketcher.Constraint("Coincident", 16, 1, 0, 1),
])
pocket4 = body.newObject("PartDesign::Pocket", "Pocket003")
pocket4.Profile = sketch5
pocket4.Length = 1

sketch6 = body.newObject("Sketcher::SketchObject", "Sketch005")
sketch6.AttachmentSupport = (doc.getObject("XZ_Plane"), [""])
sketch6.MapMode = "FlatFace"
sketch6.AttachmentOffset = App.Placement(App.Vector(0, 0, -100), App.Rotation())
sketch6.addGeometry([
    Part.LineSegment(App.Vector(-31.43, 72.13, 0), App.Vector(-31.57, 72.13, 0)),
    Part.LineSegment(App.Vector(-31.57, 72.13, 0), App.Vector(-35.61, 78.02, 0)),
    Part.LineSegment(App.Vector(-35.61, 78.02, 0), App.Vector(-32.1, 78.02, 0)),
    Part.LineSegment(App.Vector(-32.1, 78.02, 0), App.Vector(-32.1, 79.73, 0)),
    Part.LineSegment(App.Vector(-32.1, 79.73, 0), App.Vector(-31.43, 79.73, 0)),
    Part.LineSegment(App.Vector(-31.43, 79.73, 0), App.Vector(-31.43, 78.02, 0)),
    Part.LineSegment(App.Vector(-31.43, 78.02, 0), App.Vector(-30.58, 78.02, 0)),
    Part.LineSegment(App.Vector(-30.58, 78.02, 0), App.Vector(-30.58, 77.26, 0)),
    Part.LineSegment(App.Vector(-30.58, 77.26, 0), App.Vector(-31.43, 77.26, 0)),
    Part.LineSegment(App.Vector(-31.43, 77.26, 0), App.Vector(-31.43, 72.13, 0)),
    Part.LineSegment(App.Vector(-32.1, 77.26, 0), App.Vector(-34.31, 77.26, 0)),
    Part.LineSegment(App.Vector(-34.31, 77.26, 0), App.Vector(-32.1, 74.04, 0)),
    Part.LineSegment(App.Vector(-32.1, 74.04, 0), App.Vector(-32.1, 77.26, 0)),
], False)
sketch6.addConstraint([
    Sketcher.Constraint("Coincident", 0, 2, 1, 1),
    Sketcher.Constraint("Coincident", 1, 2, 2, 1),
    Sketcher.Constraint("Coincident", 2, 2, 3, 1),
    Sketcher.Constraint("Coincident", 3, 2, 4, 1),
    Sketcher.Constraint("Coincident", 4, 2, 5, 1),
    Sketcher.Constraint("Coincident", 5, 2, 6, 1),
    Sketcher.Constraint("Coincident", 6, 2, 7, 1),
    Sketcher.Constraint("Coincident", 7, 2, 8, 1),
    Sketcher.Constraint("Coincident", 8, 2, 9, 1),
    Sketcher.Constraint("Coincident", 9, 2, 0, 1),
    Sketcher.Constraint("Coincident", 10, 2, 11, 1),
    Sketcher.Constraint("Coincident", 11, 2, 12, 1),
    Sketcher.Constraint("Coincident", 12, 2, 10, 1),
    Sketcher.Constraint("Horizontal", 0),
    Sketcher.Constraint("Horizontal", 2),
    Sketcher.Constraint("Vertical", 3),
    Sketcher.Constraint("Horizontal", 4),
    Sketcher.Constraint("Vertical", 5),
    Sketcher.Constraint("Horizontal", 6),
    Sketcher.Constraint("Vertical", 7),
    Sketcher.Constraint("Horizontal", 8),
    Sketcher.Constraint("Vertical", 9),
    Sketcher.Constraint("Horizontal", 10),
    Sketcher.Constraint("Vertical", 12),
    Sketcher.Constraint("Horizontal", 2, 2, 5, 2),
    Sketcher.Constraint("Horizontal", 8, 2, 10, 2),
    Sketcher.Constraint("Vertical", 5, 2, 8, 2),
    Sketcher.Constraint("Vertical", 3, 2, 11, 2),
    Sketcher.Constraint("DistanceY", 12, 1, 12, 2, Q("3.217401 mm")),
    Sketcher.Constraint("DistanceX", 2, 1, 2, 2, Q("3.514209 mm")),
    Sketcher.Constraint("DistanceX", 4, 1, 4, 2, Q("0.66485 mm")),
    Sketcher.Constraint("DistanceY", 7, 2, 7, 1, Q("0.759829 mm")),
    Sketcher.Constraint("DistanceX", 0, 2, 0, 1, Q("0.135048 mm")),
    Sketcher.Constraint("DistanceX", 6, 1, 6, 2, Q("0.854808 mm")),
    Sketcher.Constraint("DistanceX", 10, 2, 10, 1, Q("2.208253 mm")),
    Sketcher.Constraint("DistanceY", 3, 1, 3, 2, Q("1.709615 mm")),
    Sketcher.Constraint("DistanceY", 9, 2, 9, 1, Q("5.128846 mm")),
    Sketcher.Constraint("DistanceX", 0, 2, -1, 1, Q("31.569179 mm")),
    Sketcher.Constraint("DistanceY", -1, 1, 0, 2, Q("72.12902 mm")),
])
pocket5 = body.newObject("PartDesign::Pocket", "Pocket004")
pocket5.Profile = sketch6
pocket5.Length = 1
pocket5.Reversed = True

doc.recompute()
